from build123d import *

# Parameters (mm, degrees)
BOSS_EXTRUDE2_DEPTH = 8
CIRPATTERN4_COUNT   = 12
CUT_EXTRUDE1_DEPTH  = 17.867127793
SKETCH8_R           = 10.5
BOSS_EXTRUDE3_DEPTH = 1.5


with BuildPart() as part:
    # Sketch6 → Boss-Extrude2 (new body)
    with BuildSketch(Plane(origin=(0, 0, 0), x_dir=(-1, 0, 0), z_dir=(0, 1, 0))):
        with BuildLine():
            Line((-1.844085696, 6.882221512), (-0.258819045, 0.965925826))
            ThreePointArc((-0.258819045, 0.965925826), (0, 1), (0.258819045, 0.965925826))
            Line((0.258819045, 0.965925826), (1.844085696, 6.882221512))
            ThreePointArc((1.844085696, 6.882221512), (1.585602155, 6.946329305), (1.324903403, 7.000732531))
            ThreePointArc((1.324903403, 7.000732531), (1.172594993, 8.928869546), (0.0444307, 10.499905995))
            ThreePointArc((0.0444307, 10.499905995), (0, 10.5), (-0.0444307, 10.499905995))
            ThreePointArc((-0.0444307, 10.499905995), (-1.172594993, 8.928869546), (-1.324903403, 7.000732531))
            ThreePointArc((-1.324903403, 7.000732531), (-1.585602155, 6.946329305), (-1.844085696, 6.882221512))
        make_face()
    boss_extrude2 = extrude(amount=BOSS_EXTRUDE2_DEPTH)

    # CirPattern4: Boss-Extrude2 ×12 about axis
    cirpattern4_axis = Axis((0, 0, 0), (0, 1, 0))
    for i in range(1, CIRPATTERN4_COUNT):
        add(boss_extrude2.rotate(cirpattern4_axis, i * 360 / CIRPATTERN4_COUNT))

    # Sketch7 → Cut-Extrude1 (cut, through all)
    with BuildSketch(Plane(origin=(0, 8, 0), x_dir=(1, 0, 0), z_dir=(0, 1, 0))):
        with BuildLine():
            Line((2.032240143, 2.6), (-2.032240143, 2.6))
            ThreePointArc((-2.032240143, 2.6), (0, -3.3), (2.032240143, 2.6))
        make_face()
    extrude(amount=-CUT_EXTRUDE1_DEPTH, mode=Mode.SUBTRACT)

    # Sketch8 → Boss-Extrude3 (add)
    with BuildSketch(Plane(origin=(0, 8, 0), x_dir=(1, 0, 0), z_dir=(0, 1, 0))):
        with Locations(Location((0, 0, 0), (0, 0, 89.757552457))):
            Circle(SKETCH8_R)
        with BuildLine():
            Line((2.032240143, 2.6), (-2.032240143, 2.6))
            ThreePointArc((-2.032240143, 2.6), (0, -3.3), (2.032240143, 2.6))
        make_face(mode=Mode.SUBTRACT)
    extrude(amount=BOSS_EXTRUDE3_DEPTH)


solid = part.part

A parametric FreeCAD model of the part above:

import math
import FreeCAD as App
import Part
import Sketcher
from FreeCAD import Vector
Q = App.Units.Quantity

doc = App.newDocument("Part")
body = doc.addObject("PartDesign::Body", "Body")

sketch1 = body.newObject("Sketcher::SketchObject", "Sketch")
sketch1.AttachmentSupport = (doc.getObject("XZ_Plane"), [""])
sketch1.MapMode = "FlatFace"
sketch1.addGeometry([
    Part.LineSegment(Vector(1.84, 6.88, 0), Vector(0.26, 0.97, 0)),
    Part.ArcOfCircle(Part.Circle(Vector(0, 0, 0), Vector(0, 0, 1), 1), math.radians(75), math.radians(105)),
    Part.LineSegment(Vector(-0.26, 0.97, 0), Vector(-1.84, 6.88, 0)),
    Part.ArcOfCircle(Part.Circle(Vector(0, 0, 0), Vector(0, 0, 1), 7.12), math.radians(100.72), math.radians(105)),
    Part.ArcOfCircle(Part.Circle(Vector(2.21, 7.69, 0), Vector(0, 0, 1), 3.6), math.radians(129), math.radians(191)),
    Part.ArcOfCircle(Part.Circle(Vector(0, 0, 0), Vector(0, 0, 1), 10.5), math.radians(89.76), math.radians(90.24)),
    Part.ArcOfCircle(Part.Circle(Vector(-2.21, 7.69, 0), Vector(0, 0, 1), 3.6), math.radians(-11), math.radians(51)),
    Part.ArcOfCircle(Part.Circle(Vector(0, 0, 0), Vector(0, 0, 1), 7.12), math.radians(75), math.radians(79.28)),
], False)
sketch1.addConstraint([
    Sketcher.Constraint("Coincident", 0, 2, 1, 1),
    Sketcher.Constraint("Coincident", 1, 2, 2, 1),
    Sketcher.Constraint("Coincident", 2, 2, 3, 2),
    Sketcher.Constraint("Coincident", 3, 1, 4, 2),
    Sketcher.Constraint("Coincident", 4, 1, 5, 2),
    Sketcher.Constraint("Coincident", 5, 1, 6, 2),
    Sketcher.Constraint("Coincident", 6, 1, 7, 2),
    Sketcher.Constraint("Coincident", 7, 1, 0, 1),
    Sketcher.Constraint("Coincident", 1, 3, -1, 1),
    Sketcher.Constraint("Coincident", 3, 3, -1, 1),
    Sketcher.Constraint("Coincident", 7, 3, -1, 1),
    Sketcher.Constraint("Equal", 4, 6),
    Sketcher.Constraint("Equal", 3, 7),
    Sketcher.Constraint("Symmetric", 4, 3, 6, 3, -2),
    Sketcher.Constraint("PointOnObject", 5, 3, -2),
    Sketcher.Constraint("Horizontal", 0, 2, 1, 2),
    Sketcher.Constraint("Horizontal", 2, 2, 7, 1),
    Sketcher.Constraint("Radius", 1, 1.0),
    Sketcher.Constraint("Radius", 4, 3.6),
    Sketcher.Constraint("Angle", 0, Q("-105 deg")),
    Sketcher.Constraint("Radius", 3, 7.124999),
    Sketcher.Constraint("Radius", 5, 10.499952),
    Sketcher.Constraint("DistanceY", 3, 1, 6, 3, 0.690999),
    Sketcher.Constraint("DistanceY", -1, 1, 4, 3, 7.691731),
    Sketcher.Constraint("DistanceX", -1, 1, 0, 2, 0.258819),
    Sketcher.Constraint("DistanceX", 4, 1, -1, 1, 0.044431),
])
pad1 = body.newObject("PartDesign::Pad", "Pad")
pad1.Profile = sketch1
pad1.Length = 8
pad1.Reversed = True
doc.recompute()

polarpattern = body.newObject("PartDesign::PolarPattern", "PolarPattern")
polarpattern.Originals = [pad1]
polarpattern.Axis = (doc.getObject("Y_Axis"), [""])
polarpattern.Angle = 360
polarpattern.Occurrences = 12
body.Tip = polarpattern

sketch2 = body.newObject("Sketcher::SketchObject", "Sketch001")
sketch2.AttachmentSupport = (doc.getObject("XZ_Plane"), [""])
sketch2.MapMode = "FlatFace"
sketch2.AttachmentOffset = App.Placement(Vector(0, 0, -8), App.Rotation())
sketch2.addGeometry([
    Part.LineSegment(Vector(2, -2.6, 0), Vector(-2, -2.6, 0)),
    Part.ArcOfCircle(Part.Circle(Vector(0, 0, 0), Vector(0, 0, 1), 3.3), math.radians(-52), math.radians(232)),
], False)
sketch2.addConstraint([
    Sketcher.Constraint("Coincident", 0, 1, 1, 1),
    Sketcher.Constraint("Coincident", 1, 2, 0, 2),
    Sketcher.Constraint("Horizontal", 0),
    Sketcher.Constraint("Coincident", 1, 3, -1, 1),
    Sketcher.Constraint("Radius", 1, 3.3),
    Sketcher.Constraint("DistanceY", 0, 1, -1, 1, 2.6),
])
pocket1 = body.newObject("PartDesign::Pocket", "Pocket")
pocket1.Profile = sketch2
pocket1.Type = "ThroughAll"
pocket1.Reversed = True

sketch3 = body.newObject("Sketcher::SketchObject", "Sketch002")
sketch3.AttachmentSupport = (doc.getObject("XZ_Plane"), [""])
sketch3.MapMode = "FlatFace"
sketch3.AttachmentOffset = App.Placement(Vector(0, 0, -8), App.Rotation())
sketch3.addGeometry([
    Part.Circle(Vector(0, 0, 0), Vector(0, 0, 1), 10.5),
    Part.LineSegment(Vector(-2, -2.6, 0), Vector(2, -2.6, 0)),
    Part.ArcOfCircle(Part.Circle(Vector(0, 0, 0), Vector(0, 0, 1), 3.3), math.radians(-52), math.radians(232)),
], False)
sketch3.addConstraint([
    Sketcher.Constraint("Coincident", 1, 1, 2, 2),
    Sketcher.Constraint("Coincident", 2, 1, 1, 2),
    Sketcher.Constraint("Horizontal", 1),
    Sketcher.Constraint("Coincident", 0, 3, -1, 1),
    Sketcher.Constraint("Coincident", 2, 3, -1, 1),
    Sketcher.Constraint("Diameter", 0, 21.0),
    Sketcher.Constraint("Radius", 2, 3.3),
    Sketcher.Constraint("DistanceY", 1, 1, -1, 1, 2.6),
])
pad2 = body.newObject("PartDesign::Pad", "Pad001")
pad2.Profile = sketch3
pad2.Length = 1.5
pad2.Reversed = True

doc.recompute()
